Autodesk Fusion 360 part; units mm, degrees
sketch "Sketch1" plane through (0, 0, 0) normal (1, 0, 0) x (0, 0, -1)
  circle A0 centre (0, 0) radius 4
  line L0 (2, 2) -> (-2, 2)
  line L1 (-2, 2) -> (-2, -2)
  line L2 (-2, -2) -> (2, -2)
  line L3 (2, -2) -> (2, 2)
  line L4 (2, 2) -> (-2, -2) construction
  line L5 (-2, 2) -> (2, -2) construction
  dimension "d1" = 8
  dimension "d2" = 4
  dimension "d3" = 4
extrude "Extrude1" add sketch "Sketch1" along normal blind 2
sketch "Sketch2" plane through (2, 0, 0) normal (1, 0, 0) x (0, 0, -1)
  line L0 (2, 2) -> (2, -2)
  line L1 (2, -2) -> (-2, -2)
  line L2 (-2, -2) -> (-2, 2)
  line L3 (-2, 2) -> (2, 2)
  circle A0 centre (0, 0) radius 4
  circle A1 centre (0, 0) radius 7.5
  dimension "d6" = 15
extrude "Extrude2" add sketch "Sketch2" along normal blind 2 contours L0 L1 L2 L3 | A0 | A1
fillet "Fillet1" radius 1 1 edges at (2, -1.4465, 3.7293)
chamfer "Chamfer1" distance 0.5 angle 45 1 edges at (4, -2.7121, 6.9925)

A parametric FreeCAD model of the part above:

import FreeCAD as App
import Part
import Sketcher
from FreeCAD import Vector
Q = App.Units.Quantity


def edges_at(feature, points):
    """Names of the edges that pass closest to the given points."""
    edges = feature.Shape.Edges
    near = lambda p: min(range(len(edges)), key=lambda i: edges[i].distToShape(Part.Vertex(*p))[0])
    return sorted({f"Edge{near(p) + 1}" for p in points})

doc = App.newDocument("Part")
body = doc.addObject("PartDesign::Body", "Body")

# Sketch on YZ plane
sketch1 = body.newObject("Sketcher::SketchObject", "Sketch")
sketch1.AttachmentSupport = (doc.getObject("YZ_Plane"), [""])
sketch1.MapMode = "FlatFace"
sketch1.addGeometry([
    Part.Circle(Vector(0, 0, 0), Vector(0, 0, 1), 4),  # 0
    Part.LineSegment(Vector(2, 2, 0), Vector(2, -2, 0)),  # 1
    Part.LineSegment(Vector(2, -2, 0), Vector(-2, -2, 0)),  # 2
    Part.LineSegment(Vector(-2, -2, 0), Vector(-2, 2, 0)),  # 3
    Part.LineSegment(Vector(-2, 2, 0), Vector(2, 2, 0)),  # 4
], False)
sketch1.addConstraint([
    Sketcher.Constraint("Coincident", 1, 2, 2, 1),
    Sketcher.Constraint("Coincident", 2, 2, 3, 1),
    Sketcher.Constraint("Coincident", 3, 2, 4, 1),
    Sketcher.Constraint("Coincident", 4, 2, 1, 1),
    Sketcher.Constraint("Vertical", 1),
    Sketcher.Constraint("Horizontal", 2),
    Sketcher.Constraint("Vertical", 3),
    Sketcher.Constraint("Horizontal", 4),
    Sketcher.Constraint("Coincident", 0, 3, -1, 1),
    Sketcher.Constraint("Symmetric", 1, 2, 3, 2, -1, 1),
    Sketcher.Constraint("Equal", 4, 1),
    Sketcher.Constraint("Diameter", 0, Q("8 mm")),
    Sketcher.Constraint("DistanceX", 2, 2, 2, 1, Q("4 mm")),
])
pad1 = body.newObject("PartDesign::Pad", "Pad")
pad1.Profile = sketch1
pad1.Length = 2

# Sketch on YZ plane
sketch2 = body.newObject("Sketcher::SketchObject", "Sketch001")
sketch2.AttachmentSupport = (doc.getObject("YZ_Plane"), [""])
sketch2.MapMode = "FlatFace"
sketch2.AttachmentOffset = App.Placement(Vector(0, 0, 2), App.Rotation())
sketch2.addGeometry(Part.Circle(Vector(0, 0, 0), Vector(0, 0, 1), 7.5), False)
sketch2.addConstraint([
    Sketcher.Constraint("Coincident", 0, 3, -1, 1),
    Sketcher.Constraint("Diameter", 0, Q("15 mm")),
])
pad2 = body.newObject("PartDesign::Pad", "Pad001")
pad2.Profile = sketch2
pad2.Length = 2
doc.recompute()

fillet = body.newObject("PartDesign::Fillet", "Fillet")
fillet.Base = (pad2, edges_at(pad2, [(2, -1.446, 3.729)]))
fillet.Radius = 1
doc.recompute()

chamfer = body.newObject("PartDesign::Chamfer", "Chamfer")
chamfer.Base = (fillet, edges_at(fillet, [(4, -2.712, 6.992)]))
chamfer.Size = 0.5

doc.recompute()
